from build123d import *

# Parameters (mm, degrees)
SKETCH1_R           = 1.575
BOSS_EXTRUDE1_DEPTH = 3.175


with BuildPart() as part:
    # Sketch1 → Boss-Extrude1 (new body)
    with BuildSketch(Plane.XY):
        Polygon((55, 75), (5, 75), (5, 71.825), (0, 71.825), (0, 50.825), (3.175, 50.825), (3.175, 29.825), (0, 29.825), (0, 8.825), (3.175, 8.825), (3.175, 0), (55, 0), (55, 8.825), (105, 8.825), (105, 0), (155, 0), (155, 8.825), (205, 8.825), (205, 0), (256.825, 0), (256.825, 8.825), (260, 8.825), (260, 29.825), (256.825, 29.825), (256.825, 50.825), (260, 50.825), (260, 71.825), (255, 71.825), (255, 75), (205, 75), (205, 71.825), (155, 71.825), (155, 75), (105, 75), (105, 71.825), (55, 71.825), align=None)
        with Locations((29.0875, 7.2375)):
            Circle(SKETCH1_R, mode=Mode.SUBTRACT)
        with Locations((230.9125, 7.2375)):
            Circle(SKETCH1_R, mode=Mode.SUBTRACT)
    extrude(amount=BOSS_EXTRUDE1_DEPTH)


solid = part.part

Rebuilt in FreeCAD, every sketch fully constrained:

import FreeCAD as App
import Part
import Sketcher

V = App.Vector
Q = App.Units.Quantity


def add_polygon(sketch, points):
    """Adds a closed chain of lines whose ends are joined by coincident constraints."""
    first, n = sketch.GeometryCount, len(points)
    for a, b in zip(points, points[1:] + points[:1]):
        sketch.addGeometry(Part.LineSegment(App.Vector(*a, 0), App.Vector(*b, 0)), False)
    for i in range(n):
        sketch.addConstraint(Sketcher.Constraint("Coincident", first + i, 2, first + (i + 1) % n, 1))

doc = App.newDocument("Part")
params = doc.addObject("Spreadsheet::Sheet", "Params")
for row, (alias, value) in enumerate([
    ("sketch1_diameter", "3.15 mm"),
    ("sketch1_width", "50 mm"),
    ("sketch1_width2", "5 mm"),
    ("sketch1_height", "21 mm"),
    ("pad1_length", "3.175 mm"),
], start=1):
    params.set(f"A{row}", alias)
    params.set(f"B{row}", "=" + value)
    params.setAlias(f"B{row}", alias)

body = doc.addObject("PartDesign::Body", "Body")

# Sketch on XY plane
sketch1 = body.newObject("Sketcher::SketchObject", "Sketch")
sketch1.AttachmentSupport = (doc.getObject("XY_Plane"), [""])
sketch1.MapMode = "FlatFace"
add_polygon(sketch1, [(55, 75), (5, 75), (5, 71.825), (0, 71.825), (0, 50.825), (3.175, 50.825), (3.175, 29.825), (0, 29.825), (0, 8.825), (3.175, 8.825), (3.175, 0), (55, 0), (55, 8.825), (105, 8.825), (105, 0), (155, 0), (155, 8.825), (205, 8.825), (205, 0), (256.825, 0), (256.825, 8.825), (260, 8.825), (260, 29.825), (256.825, 29.825), (256.825, 50.825), (260, 50.825), (260, 71.825), (255, 71.825), (255, 75), (205, 75), (205, 71.825), (155, 71.825), (155, 75), (105, 75), (105, 71.825), (55, 71.825)])  # lines 0-35
sketch1.addGeometry(Part.Circle(V(29.0875, 7.2375, 0), V(0, 0, 1), 1.575), False)  # 36
sketch1.addGeometry(Part.Circle(V(230.9125, 7.2375, 0), V(0, 0, 1), 1.575), False)  # 37
sketch1.addConstraint(Sketcher.Constraint("Horizontal", 0))
sketch1.addConstraint(Sketcher.Constraint("Vertical", 1))
sketch1.addConstraint(Sketcher.Constraint("Horizontal", 2))
sketch1.addConstraint(Sketcher.Constraint("Vertical", 3))
sketch1.addConstraint(Sketcher.Constraint("Horizontal", 4))
sketch1.addConstraint(Sketcher.Constraint("Vertical", 5))
sketch1.addConstraint(Sketcher.Constraint("Horizontal", 6))
sketch1.addConstraint(Sketcher.Constraint("Vertical", 7))
sketch1.addConstraint(Sketcher.Constraint("Horizontal", 8))
sketch1.addConstraint(Sketcher.Constraint("Vertical", 9))
sketch1.addConstraint(Sketcher.Constraint("Horizontal", 10))
sketch1.addConstraint(Sketcher.Constraint("Vertical", 11))
sketch1.addConstraint(Sketcher.Constraint("Horizontal", 12))
sketch1.addConstraint(Sketcher.Constraint("Vertical", 13))
sketch1.addConstraint(Sketcher.Constraint("Horizontal", 14))
sketch1.addConstraint(Sketcher.Constraint("Vertical", 15))
sketch1.addConstraint(Sketcher.Constraint("Horizontal", 16))
sketch1.addConstraint(Sketcher.Constraint("Vertical", 17))
sketch1.addConstraint(Sketcher.Constraint("Horizontal", 18))
sketch1.addConstraint(Sketcher.Constraint("Vertical", 19))
sketch1.addConstraint(Sketcher.Constraint("Horizontal", 20))
sketch1.addConstraint(Sketcher.Constraint("Vertical", 21))
sketch1.addConstraint(Sketcher.Constraint("Horizontal", 22))
sketch1.addConstraint(Sketcher.Constraint("Vertical", 23))
sketch1.addConstraint(Sketcher.Constraint("Horizontal", 24))
sketch1.addConstraint(Sketcher.Constraint("Vertical", 25))
sketch1.addConstraint(Sketcher.Constraint("Horizontal", 26))
sketch1.addConstraint(Sketcher.Constraint("Vertical", 27))
sketch1.addConstraint(Sketcher.Constraint("Horizontal", 28))
sketch1.addConstraint(Sketcher.Constraint("Vertical", 29))
sketch1.addConstraint(Sketcher.Constraint("Horizontal", 30))
sketch1.addConstraint(Sketcher.Constraint("Vertical", 31))
sketch1.addConstraint(Sketcher.Constraint("Horizontal", 32))
sketch1.addConstraint(Sketcher.Constraint("Vertical", 33))
sketch1.addConstraint(Sketcher.Constraint("Horizontal", 34))
sketch1.addConstraint(Sketcher.Constraint("Vertical", 35))
sketch1.addConstraint(Sketcher.Constraint("Equal", 36, 37))
sketch1.addConstraint(Sketcher.Constraint("PointOnObject", 2, 2, -2))
sketch1.addConstraint(Sketcher.Constraint("PointOnObject", 6, 2, -2))
sketch1.addConstraint(Sketcher.Constraint("PointOnObject", 9, 2, -1))
sketch1.addConstraint(Sketcher.Constraint("PointOnObject", 13, 2, -1))
sketch1.addConstraint(Sketcher.Constraint("PointOnObject", 17, 2, -1))
sketch1.addConstraint(Sketcher.Constraint("Horizontal", 36, 3, 37, 3))
sketch1.addConstraint(Sketcher.Constraint("Horizontal", 8, 2, 11, 2))
sketch1.addConstraint(Sketcher.Constraint("Horizontal", 12, 2, 15, 2))
sketch1.addConstraint(Sketcher.Constraint("Horizontal", 16, 2, 19, 2))
sketch1.addConstraint(Sketcher.Constraint("Horizontal", 6, 2, 21, 2))
sketch1.addConstraint(Sketcher.Constraint("Horizontal", 4, 2, 23, 2))
sketch1.addConstraint(Sketcher.Constraint("Horizontal", 2, 2, 25, 2))
sketch1.addConstraint(Sketcher.Constraint("Horizontal", 0, 2, 27, 2))
sketch1.addConstraint(Sketcher.Constraint("Horizontal", 26, 2, 29, 2))
sketch1.addConstraint(Sketcher.Constraint("Horizontal", 28, 2, 31, 2))
sketch1.addConstraint(Sketcher.Constraint("Horizontal", 30, 2, 33, 2))
sketch1.addConstraint(Sketcher.Constraint("Vertical", 5, 2, 8, 2))
sketch1.addConstraint(Sketcher.Constraint("Vertical", 19, 2, 22, 2))
sketch1.addConstraint(Sketcher.Constraint("Vertical", 21, 2, 24, 2))
sketch1.addConstraint(Sketcher.Constraint("Vertical", 17, 2, 28, 2))
sketch1.addConstraint(Sketcher.Constraint("Vertical", 15, 2, 30, 2))
sketch1.addConstraint(Sketcher.Constraint("Vertical", 13, 2, 32, 2))
sketch1.addConstraint(Sketcher.Constraint("Vertical", 11, 2, 34, 2))
sketch1.addConstraint(Sketcher.Constraint("Equal", 0, 12))
sketch1.addConstraint(Sketcher.Constraint("Equal", 12, 14))
sketch1.addConstraint(Sketcher.Constraint("Equal", 14, 16))
sketch1.addConstraint(Sketcher.Constraint("Equal", 10, 18))
sketch1.addConstraint(Sketcher.Constraint("Equal", 8, 20))
sketch1.addConstraint(Sketcher.Constraint("Equal", 2, 26))
sketch1.addConstraint(Sketcher.Constraint("Equal", 24, 1))
sketch1.addConstraint(Sketcher.Constraint("Equal", 3, 5))
sketch1.addConstraint(Sketcher.Constraint("Equal", 5, 7))
sketch1.addConstraint(Sketcher.Constraint("Diameter", 36, Q("3.15 mm")))
sketch1.addConstraint(Sketcher.Constraint("DistanceX", 0, 2, 0, 1, Q("50 mm")))
sketch1.addConstraint(Sketcher.Constraint("DistanceX", 2, 2, 2, 1, Q("5 mm")))
sketch1.addConstraint(Sketcher.Constraint("DistanceY", 3, 2, 3, 1, Q("21 mm")))
sketch1.addConstraint(Sketcher.Constraint("DistanceY", -1, 1, 0, 2, Q("75 mm")))
sketch1.addConstraint(Sketcher.Constraint("DistanceX", 4, 1, 4, 2, Q("3.175 mm")))
sketch1.addConstraint(Sketcher.Constraint("DistanceX", 36, 3, 37, 3, Q("201.825 mm")))
sketch1.addConstraint(Sketcher.Constraint("DistanceX", -1, 1, 36, 3, Q("29.0875 mm")))
sketch1.addConstraint(Sketcher.Constraint("DistanceY", -1, 1, 36, 3, Q("7.2375 mm")))
sketch1.setExpression("Constraints[105]", "Params.sketch1_diameter")
sketch1.setExpression("Constraints[106]", "Params.sketch1_width")
sketch1.setExpression("Constraints[107]", "Params.sketch1_width2")
sketch1.setExpression("Constraints[108]", "Params.sketch1_height")
pad1 = body.newObject("PartDesign::Pad", "Pad")
pad1.Profile = sketch1
pad1.setExpression("Length", "Params.pad1_length")

doc.recompute()
